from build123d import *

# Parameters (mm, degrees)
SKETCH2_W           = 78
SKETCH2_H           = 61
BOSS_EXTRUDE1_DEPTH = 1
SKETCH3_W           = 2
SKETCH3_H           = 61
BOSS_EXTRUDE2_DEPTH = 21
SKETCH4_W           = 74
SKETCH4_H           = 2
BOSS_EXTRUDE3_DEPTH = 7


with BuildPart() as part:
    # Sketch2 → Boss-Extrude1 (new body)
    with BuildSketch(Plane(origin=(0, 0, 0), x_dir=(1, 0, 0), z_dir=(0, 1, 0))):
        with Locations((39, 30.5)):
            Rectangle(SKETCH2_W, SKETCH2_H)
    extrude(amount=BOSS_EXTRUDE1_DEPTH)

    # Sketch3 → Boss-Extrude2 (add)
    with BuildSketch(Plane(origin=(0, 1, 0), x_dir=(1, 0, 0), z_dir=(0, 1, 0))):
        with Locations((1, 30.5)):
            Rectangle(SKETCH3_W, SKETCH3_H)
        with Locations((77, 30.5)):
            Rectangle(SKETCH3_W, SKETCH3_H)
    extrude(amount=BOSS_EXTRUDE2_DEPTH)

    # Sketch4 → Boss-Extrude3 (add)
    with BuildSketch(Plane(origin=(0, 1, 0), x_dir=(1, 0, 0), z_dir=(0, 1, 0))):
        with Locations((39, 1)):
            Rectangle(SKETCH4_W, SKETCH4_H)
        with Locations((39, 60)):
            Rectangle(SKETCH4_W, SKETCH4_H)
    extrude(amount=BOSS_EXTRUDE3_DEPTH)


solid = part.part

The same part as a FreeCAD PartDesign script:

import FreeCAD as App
import Part
import Sketcher

V = App.Vector

doc = App.newDocument("Part")
body = doc.addObject("PartDesign::Body", "Body")

# Sketch on XZ plane
sketch1 = body.newObject("Sketcher::SketchObject", "Sketch")
sketch1.AttachmentSupport = (doc.getObject("XZ_Plane"), [""])
sketch1.MapMode = "FlatFace"
sketch1.addGeometry(Part.LineSegment(V(0, -61, 0), V(0, 0, 0)), False)
sketch1.addGeometry(Part.LineSegment(V(0, 0, 0), V(78, 0, 0)), False)
sketch1.addGeometry(Part.LineSegment(V(78, 0, 0), V(78, -61, 0)), False)
sketch1.addGeometry(Part.LineSegment(V(78, -61, 0), V(0, -61, 0)), False)
sketch1.addConstraint(Sketcher.Constraint("Coincident", 0, 2, 1, 1))
sketch1.addConstraint(Sketcher.Constraint("Coincident", 1, 2, 2, 1))
sketch1.addConstraint(Sketcher.Constraint("Coincident", 2, 2, 3, 1))
sketch1.addConstraint(Sketcher.Constraint("Coincident", 3, 2, 0, 1))
sketch1.addConstraint(Sketcher.Constraint("Vertical", 0))
sketch1.addConstraint(Sketcher.Constraint("Horizontal", 1))
sketch1.addConstraint(Sketcher.Constraint("Vertical", 2))
sketch1.addConstraint(Sketcher.Constraint("Horizontal", 3))
sketch1.addConstraint(Sketcher.Constraint("Coincident", 0, 2, -1, 1))
sketch1.addConstraint(Sketcher.Constraint("DistanceX", 1, 1, 1, 2, 78.0))
sketch1.addConstraint(Sketcher.Constraint("DistanceY", 0, 1, 0, 2, 61.0))
pad1 = body.newObject("PartDesign::Pad", "Pad")
pad1.Profile = sketch1
pad1.Length = 1
pad1.Reversed = True

# Sketch on XZ plane
sketch2 = body.newObject("Sketcher::SketchObject", "Sketch001")
sketch2.AttachmentSupport = (doc.getObject("XZ_Plane"), [""])
sketch2.MapMode = "FlatFace"
sketch2.AttachmentOffset = App.Placement(V(0, 0, -1), App.Rotation())
sketch2.addGeometry(Part.LineSegment(V(0, -61, 0), V(0, 0, 0)), False)
sketch2.addGeometry(Part.LineSegment(V(0, 0, 0), V(2, 0, 0)), False)
sketch2.addGeometry(Part.LineSegment(V(2, 0, 0), V(2, -61, 0)), False)
sketch2.addGeometry(Part.LineSegment(V(2, -61, 0), V(0, -61, 0)), False)
sketch2.addGeometry(Part.LineSegment(V(76, -61, 0), V(76, 0, 0)), False)
sketch2.addGeometry(Part.LineSegment(V(76, 0, 0), V(78, 0, 0)), False)
sketch2.addGeometry(Part.LineSegment(V(78, 0, 0), V(78, -61, 0)), False)
sketch2.addGeometry(Part.LineSegment(V(78, -61, 0), V(76, -61, 0)), False)
sketch2.addConstraint(Sketcher.Constraint("Coincident", 0, 2, 1, 1))
sketch2.addConstraint(Sketcher.Constraint("Coincident", 1, 2, 2, 1))
sketch2.addConstraint(Sketcher.Constraint("Coincident", 2, 2, 3, 1))
sketch2.addConstraint(Sketcher.Constraint("Coincident", 3, 2, 0, 1))
sketch2.addConstraint(Sketcher.Constraint("Coincident", 4, 2, 5, 1))
sketch2.addConstraint(Sketcher.Constraint("Coincident", 5, 2, 6, 1))
sketch2.addConstraint(Sketcher.Constraint("Coincident", 6, 2, 7, 1))
sketch2.addConstraint(Sketcher.Constraint("Coincident", 7, 2, 4, 1))
sketch2.addConstraint(Sketcher.Constraint("Vertical", 0))
sketch2.addConstraint(Sketcher.Constraint("Horizontal", 1))
sketch2.addConstraint(Sketcher.Constraint("Vertical", 2))
sketch2.addConstraint(Sketcher.Constraint("Horizontal", 3))
sketch2.addConstraint(Sketcher.Constraint("Vertical", 4))
sketch2.addConstraint(Sketcher.Constraint("Horizontal", 5))
sketch2.addConstraint(Sketcher.Constraint("Vertical", 6))
sketch2.addConstraint(Sketcher.Constraint("Horizontal", 7))
sketch2.addConstraint(Sketcher.Constraint("Coincident", 0, 2, -1, 1))
sketch2.addConstraint(Sketcher.Constraint("PointOnObject", 4, 2, -1))
sketch2.addConstraint(Sketcher.Constraint("Horizontal", 3, 2, 6, 2))
sketch2.addConstraint(Sketcher.Constraint("Equal", 3, 5))
sketch2.addConstraint(Sketcher.Constraint("DistanceX", 1, 1, 1, 2, 2.0))
sketch2.addConstraint(Sketcher.Constraint("DistanceY", 0, 1, 0, 2, 61.0))
sketch2.addConstraint(Sketcher.Constraint("DistanceX", -1, 1, 4, 2, 76.0))
pad2 = body.newObject("PartDesign::Pad", "Pad001")
pad2.Profile = sketch2
pad2.Length = 21
pad2.Reversed = True

# Sketch on XZ plane
sketch3 = body.newObject("Sketcher::SketchObject", "Sketch002")
sketch3.AttachmentSupport = (doc.getObject("XZ_Plane"), [""])
sketch3.MapMode = "FlatFace"
sketch3.AttachmentOffset = App.Placement(V(0, 0, -1), App.Rotation())
sketch3.addGeometry(Part.LineSegment(V(2, -2, 0), V(2, 0, 0)), False)
sketch3.addGeometry(Part.LineSegment(V(2, 0, 0), V(76, 0, 0)), False)
sketch3.addGeometry(Part.LineSegment(V(76, 0, 0), V(76, -2, 0)), False)
sketch3.addGeometry(Part.LineSegment(V(76, -2, 0), V(2, -2, 0)), False)
sketch3.addGeometry(Part.LineSegment(V(2, -61, 0), V(2, -59, 0)), False)
sketch3.addGeometry(Part.LineSegment(V(2, -59, 0), V(76, -59, 0)), False)
sketch3.addGeometry(Part.LineSegment(V(76, -59, 0), V(76, -61, 0)), False)
sketch3.addGeometry(Part.LineSegment(V(76, -61, 0), V(2, -61, 0)), False)
sketch3.addConstraint(Sketcher.Constraint("Coincident", 0, 2, 1, 1))
sketch3.addConstraint(Sketcher.Constraint("Coincident", 1, 2, 2, 1))
sketch3.addConstraint(Sketcher.Constraint("Coincident", 2, 2, 3, 1))
sketch3.addConstraint(Sketcher.Constraint("Coincident", 3, 2, 0, 1))
sketch3.addConstraint(Sketcher.Constraint("Coincident", 4, 2, 5, 1))
sketch3.addConstraint(Sketcher.Constraint("Coincident", 5, 2, 6, 1))
sketch3.addConstraint(Sketcher.Constraint("Coincident", 6, 2, 7, 1))
sketch3.addConstraint(Sketcher.Constraint("Coincident", 7, 2, 4, 1))
sketch3.addConstraint(Sketcher.Constraint("Vertical", 0))
sketch3.addConstraint(Sketcher.Constraint("Horizontal", 1))
sketch3.addConstraint(Sketcher.Constraint("Vertical", 2))
sketch3.addConstraint(Sketcher.Constraint("Horizontal", 3))
sketch3.addConstraint(Sketcher.Constraint("Vertical", 4))
sketch3.addConstraint(Sketcher.Constraint("Horizontal", 5))
sketch3.addConstraint(Sketcher.Constraint("Vertical", 6))
sketch3.addConstraint(Sketcher.Constraint("Horizontal", 7))
sketch3.addConstraint(Sketcher.Constraint("PointOnObject", 0, 2, -1))
sketch3.addConstraint(Sketcher.Constraint("Vertical", 3, 2, 4, 2))
sketch3.addConstraint(Sketcher.Constraint("Vertical", 2, 2, 5, 2))
sketch3.addConstraint(Sketcher.Constraint("Equal", 2, 4))
sketch3.addConstraint(Sketcher.Constraint("DistanceX", 1, 1, 1, 2, 74.0))
sketch3.addConstraint(Sketcher.Constraint("DistanceY", 0, 1, 0, 2, 2.0))
sketch3.addConstraint(Sketcher.Constraint("DistanceX", -1, 1, 0, 2, 2.0))
sketch3.addConstraint(Sketcher.Constraint("DistanceY", 4, 2, -1, 1, 59.0))
pad3 = body.newObject("PartDesign::Pad", "Pad002")
pad3.Profile = sketch3
pad3.Length = 7
pad3.Reversed = True

doc.recompute()
